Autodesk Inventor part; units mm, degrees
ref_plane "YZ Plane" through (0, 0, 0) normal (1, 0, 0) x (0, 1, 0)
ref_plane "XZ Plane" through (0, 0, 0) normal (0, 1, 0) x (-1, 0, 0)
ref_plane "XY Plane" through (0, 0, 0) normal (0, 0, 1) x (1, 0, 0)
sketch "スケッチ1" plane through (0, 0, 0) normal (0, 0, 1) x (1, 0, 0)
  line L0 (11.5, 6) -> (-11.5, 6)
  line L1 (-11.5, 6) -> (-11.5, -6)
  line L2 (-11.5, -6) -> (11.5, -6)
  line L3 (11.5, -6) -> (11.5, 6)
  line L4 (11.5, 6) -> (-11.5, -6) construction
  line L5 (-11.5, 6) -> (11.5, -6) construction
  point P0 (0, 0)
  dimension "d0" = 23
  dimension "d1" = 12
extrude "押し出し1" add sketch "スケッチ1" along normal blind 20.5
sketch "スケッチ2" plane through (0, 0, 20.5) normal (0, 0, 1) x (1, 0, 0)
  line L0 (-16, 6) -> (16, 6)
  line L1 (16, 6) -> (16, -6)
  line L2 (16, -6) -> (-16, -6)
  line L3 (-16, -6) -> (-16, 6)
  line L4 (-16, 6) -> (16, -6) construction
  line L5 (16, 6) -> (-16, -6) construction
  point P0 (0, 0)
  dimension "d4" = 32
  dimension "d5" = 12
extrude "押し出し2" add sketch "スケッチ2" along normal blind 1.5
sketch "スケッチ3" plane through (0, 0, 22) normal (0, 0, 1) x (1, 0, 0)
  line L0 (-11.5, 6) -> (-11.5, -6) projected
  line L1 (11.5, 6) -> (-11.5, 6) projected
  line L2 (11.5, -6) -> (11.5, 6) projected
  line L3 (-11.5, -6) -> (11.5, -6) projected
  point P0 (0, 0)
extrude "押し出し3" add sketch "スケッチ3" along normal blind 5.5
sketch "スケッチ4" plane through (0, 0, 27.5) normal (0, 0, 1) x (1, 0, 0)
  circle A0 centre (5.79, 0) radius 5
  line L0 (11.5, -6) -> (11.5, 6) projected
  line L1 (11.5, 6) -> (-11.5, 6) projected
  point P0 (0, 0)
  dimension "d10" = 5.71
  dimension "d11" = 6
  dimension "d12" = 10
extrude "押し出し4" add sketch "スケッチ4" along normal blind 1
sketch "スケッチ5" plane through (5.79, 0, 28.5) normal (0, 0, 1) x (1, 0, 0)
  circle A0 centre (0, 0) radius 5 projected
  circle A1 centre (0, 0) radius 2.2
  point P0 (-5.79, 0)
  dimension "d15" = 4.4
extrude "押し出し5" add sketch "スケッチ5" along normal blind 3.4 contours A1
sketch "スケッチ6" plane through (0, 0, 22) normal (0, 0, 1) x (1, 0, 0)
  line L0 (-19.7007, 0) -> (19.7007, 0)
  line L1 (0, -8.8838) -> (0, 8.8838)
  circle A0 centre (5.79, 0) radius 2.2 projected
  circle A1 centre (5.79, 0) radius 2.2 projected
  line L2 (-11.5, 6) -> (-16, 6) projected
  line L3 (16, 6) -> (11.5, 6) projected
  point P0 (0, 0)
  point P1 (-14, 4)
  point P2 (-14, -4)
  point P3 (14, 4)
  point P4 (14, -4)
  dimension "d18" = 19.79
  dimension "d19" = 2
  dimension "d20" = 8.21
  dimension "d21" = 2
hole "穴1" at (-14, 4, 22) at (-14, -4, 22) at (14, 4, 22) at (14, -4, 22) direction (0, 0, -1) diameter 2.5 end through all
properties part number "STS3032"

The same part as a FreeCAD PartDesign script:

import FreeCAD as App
import Part
import Sketcher
from FreeCAD import Vector


def add_polygon(sketch, points):
    """Adds a closed chain of lines whose ends are joined by coincident constraints."""
    first, n = sketch.GeometryCount, len(points)
    for a, b in zip(points, points[1:] + points[:1]):
        sketch.addGeometry(Part.LineSegment(App.Vector(*a, 0), App.Vector(*b, 0)), False)
    for i in range(n):
        sketch.addConstraint(Sketcher.Constraint("Coincident", first + i, 2, first + (i + 1) % n, 1))

doc = App.newDocument("Part")
body = doc.addObject("PartDesign::Body", "Body")

sketch1 = doc.addObject("Sketcher::SketchObject", "Sketch")
body.addObject(sketch1)
sketch1.AttachmentSupport = (doc.XY_Plane, [""])
sketch1.MapMode = "FlatFace"
add_polygon(sketch1, [(11.5, -6), (11.5, 6), (-11.5, 6), (-11.5, -6)])
sketch1.addConstraint(Sketcher.Constraint("Vertical", 0))
sketch1.addConstraint(Sketcher.Constraint("Horizontal", 1))
sketch1.addConstraint(Sketcher.Constraint("Vertical", 2))
sketch1.addConstraint(Sketcher.Constraint("Horizontal", 3))
sketch1.addConstraint(Sketcher.Constraint("Symmetric", 0, 2, 2, 2, -1, 1))
sketch1.addConstraint(Sketcher.Constraint("DistanceX", 1, 2, 1, 1, 23.0))
sketch1.addConstraint(Sketcher.Constraint("DistanceY", 0, 1, 0, 2, 12.0))
pad1 = doc.addObject("PartDesign::Pad", "Pad")
body.addObject(pad1)
pad1.Profile = sketch1
pad1.Length = 20.5

sketch2 = doc.addObject("Sketcher::SketchObject", "Sketch001")
body.addObject(sketch2)
sketch2.AttachmentSupport = (doc.XY_Plane, [""])
sketch2.MapMode = "FlatFace"
sketch2.AttachmentOffset = App.Placement(Vector(0, 0, 20.5), App.Rotation())
add_polygon(sketch2, [(16, 6), (-16, 6), (-16, -6), (16, -6)])
sketch2.addConstraint(Sketcher.Constraint("Horizontal", 0))
sketch2.addConstraint(Sketcher.Constraint("Vertical", 1))
sketch2.addConstraint(Sketcher.Constraint("Horizontal", 2))
sketch2.addConstraint(Sketcher.Constraint("Vertical", 3))
sketch2.addConstraint(Sketcher.Constraint("Symmetric", 0, 2, 2, 2, -1, 1))
sketch2.addConstraint(Sketcher.Constraint("DistanceX", 0, 2, 0, 1, 32.0))
sketch2.addConstraint(Sketcher.Constraint("DistanceY", 1, 2, 1, 1, 12.0))
pad2 = doc.addObject("PartDesign::Pad", "Pad001")
body.addObject(pad2)
pad2.Profile = sketch2
pad2.Length = 1.5

sketch3 = doc.addObject("Sketcher::SketchObject", "Sketch002")
body.addObject(sketch3)
sketch3.AttachmentSupport = (doc.XY_Plane, [""])
sketch3.MapMode = "FlatFace"
sketch3.AttachmentOffset = App.Placement(Vector(0, 0, 22), App.Rotation())
add_polygon(sketch3, [(11.5, 6), (-11.5, 6), (-11.5, -6), (11.5, -6)])
sketch3.addConstraint(Sketcher.Constraint("Horizontal", 0))
sketch3.addConstraint(Sketcher.Constraint("Vertical", 1))
sketch3.addConstraint(Sketcher.Constraint("Horizontal", 2))
sketch3.addConstraint(Sketcher.Constraint("Vertical", 3))
sketch3.addConstraint(Sketcher.Constraint("Symmetric", 0, 2, 2, 2, -1, 1))
sketch3.addConstraint(Sketcher.Constraint("DistanceX", 0, 2, 0, 1, 23.0))
sketch3.addConstraint(Sketcher.Constraint("DistanceY", 1, 2, 1, 1, 12.0))
pad3 = doc.addObject("PartDesign::Pad", "Pad002")
body.addObject(pad3)
pad3.Profile = sketch3
pad3.Length = 5.5

sketch4 = doc.addObject("Sketcher::SketchObject", "Sketch003")
body.addObject(sketch4)
sketch4.AttachmentSupport = (doc.XY_Plane, [""])
sketch4.MapMode = "FlatFace"
sketch4.AttachmentOffset = App.Placement(Vector(0, 0, 27.5), App.Rotation())
sketch4.addGeometry(Part.Circle(Vector(5.79, 0, 0), Vector(0, 0, 1), 5), False)
sketch4.addConstraint(Sketcher.Constraint("PointOnObject", 0, 3, -1))
sketch4.addConstraint(Sketcher.Constraint("Diameter", 0, 10.0))
sketch4.addConstraint(Sketcher.Constraint("DistanceX", -1, 1, 0, 3, 5.79))
pad4 = doc.addObject("PartDesign::Pad", "Pad003")
body.addObject(pad4)
pad4.Profile = sketch4
pad4.Length = 1

sketch5 = doc.addObject("Sketcher::SketchObject", "Sketch004")
body.addObject(sketch5)
sketch5.AttachmentSupport = (doc.XY_Plane, [""])
sketch5.MapMode = "FlatFace"
sketch5.AttachmentOffset = App.Placement(Vector(0, 0, 28.5), App.Rotation())
sketch5.addGeometry(Part.Circle(Vector(5.79, 0, 0), Vector(0, 0, 1), 2.2), False)
sketch5.addConstraint(Sketcher.Constraint("PointOnObject", 0, 3, -1))
sketch5.addConstraint(Sketcher.Constraint("Diameter", 0, 4.4))
sketch5.addConstraint(Sketcher.Constraint("DistanceX", -1, 1, 0, 3, 5.79))
pad5 = doc.addObject("PartDesign::Pad", "Pad004")
body.addObject(pad5)
pad5.Profile = sketch5
pad5.Length = 3.4

sketch6 = doc.addObject("Sketcher::SketchObject", "Sketch005")
body.addObject(sketch6)
sketch6.AttachmentSupport = (doc.XY_Plane, [""])
sketch6.MapMode = "FlatFace"
sketch6.AttachmentOffset = App.Placement(Vector(0, 0, 22), App.Rotation())
sketch6.addGeometry(Part.Circle(Vector(-14, 4, 0), Vector(0, 0, 1), 1.25), False)
sketch6.addGeometry(Part.Circle(Vector(-14, -4, 0), Vector(0, 0, 1), 1.25), False)
sketch6.addGeometry(Part.Circle(Vector(14, 4, 0), Vector(0, 0, 1), 1.25), False)
sketch6.addGeometry(Part.Circle(Vector(14, -4, 0), Vector(0, 0, 1), 1.25), False)
sketch6.addConstraint(Sketcher.Constraint("Equal", 0, 1))
sketch6.addConstraint(Sketcher.Constraint("Equal", 1, 2))
sketch6.addConstraint(Sketcher.Constraint("Equal", 2, 3))
sketch6.addConstraint(Sketcher.Constraint("Symmetric", 1, 3, 2, 3, -1, 1))
sketch6.addConstraint(Sketcher.Constraint("Symmetric", 0, 3, 3, 3, -1, 1))
sketch6.addConstraint(Sketcher.Constraint("Symmetric", 0, 3, 2, 3, -2))
sketch6.addConstraint(Sketcher.Constraint("Diameter", 0, 2.5))
sketch6.addConstraint(Sketcher.Constraint("DistanceX", 0, 3, -1, 1, 14.0))
sketch6.addConstraint(Sketcher.Constraint("DistanceY", -1, 1, 0, 3, 4.0))
doc.recompute()
hole = doc.addObject("PartDesign::Hole", "Hole")
body.addObject(hole)
hole.Profile = sketch6
hole.ThreadType = "None"
hole.Diameter = 2.5
hole.DepthType = "ThroughAll"

doc.recompute()
